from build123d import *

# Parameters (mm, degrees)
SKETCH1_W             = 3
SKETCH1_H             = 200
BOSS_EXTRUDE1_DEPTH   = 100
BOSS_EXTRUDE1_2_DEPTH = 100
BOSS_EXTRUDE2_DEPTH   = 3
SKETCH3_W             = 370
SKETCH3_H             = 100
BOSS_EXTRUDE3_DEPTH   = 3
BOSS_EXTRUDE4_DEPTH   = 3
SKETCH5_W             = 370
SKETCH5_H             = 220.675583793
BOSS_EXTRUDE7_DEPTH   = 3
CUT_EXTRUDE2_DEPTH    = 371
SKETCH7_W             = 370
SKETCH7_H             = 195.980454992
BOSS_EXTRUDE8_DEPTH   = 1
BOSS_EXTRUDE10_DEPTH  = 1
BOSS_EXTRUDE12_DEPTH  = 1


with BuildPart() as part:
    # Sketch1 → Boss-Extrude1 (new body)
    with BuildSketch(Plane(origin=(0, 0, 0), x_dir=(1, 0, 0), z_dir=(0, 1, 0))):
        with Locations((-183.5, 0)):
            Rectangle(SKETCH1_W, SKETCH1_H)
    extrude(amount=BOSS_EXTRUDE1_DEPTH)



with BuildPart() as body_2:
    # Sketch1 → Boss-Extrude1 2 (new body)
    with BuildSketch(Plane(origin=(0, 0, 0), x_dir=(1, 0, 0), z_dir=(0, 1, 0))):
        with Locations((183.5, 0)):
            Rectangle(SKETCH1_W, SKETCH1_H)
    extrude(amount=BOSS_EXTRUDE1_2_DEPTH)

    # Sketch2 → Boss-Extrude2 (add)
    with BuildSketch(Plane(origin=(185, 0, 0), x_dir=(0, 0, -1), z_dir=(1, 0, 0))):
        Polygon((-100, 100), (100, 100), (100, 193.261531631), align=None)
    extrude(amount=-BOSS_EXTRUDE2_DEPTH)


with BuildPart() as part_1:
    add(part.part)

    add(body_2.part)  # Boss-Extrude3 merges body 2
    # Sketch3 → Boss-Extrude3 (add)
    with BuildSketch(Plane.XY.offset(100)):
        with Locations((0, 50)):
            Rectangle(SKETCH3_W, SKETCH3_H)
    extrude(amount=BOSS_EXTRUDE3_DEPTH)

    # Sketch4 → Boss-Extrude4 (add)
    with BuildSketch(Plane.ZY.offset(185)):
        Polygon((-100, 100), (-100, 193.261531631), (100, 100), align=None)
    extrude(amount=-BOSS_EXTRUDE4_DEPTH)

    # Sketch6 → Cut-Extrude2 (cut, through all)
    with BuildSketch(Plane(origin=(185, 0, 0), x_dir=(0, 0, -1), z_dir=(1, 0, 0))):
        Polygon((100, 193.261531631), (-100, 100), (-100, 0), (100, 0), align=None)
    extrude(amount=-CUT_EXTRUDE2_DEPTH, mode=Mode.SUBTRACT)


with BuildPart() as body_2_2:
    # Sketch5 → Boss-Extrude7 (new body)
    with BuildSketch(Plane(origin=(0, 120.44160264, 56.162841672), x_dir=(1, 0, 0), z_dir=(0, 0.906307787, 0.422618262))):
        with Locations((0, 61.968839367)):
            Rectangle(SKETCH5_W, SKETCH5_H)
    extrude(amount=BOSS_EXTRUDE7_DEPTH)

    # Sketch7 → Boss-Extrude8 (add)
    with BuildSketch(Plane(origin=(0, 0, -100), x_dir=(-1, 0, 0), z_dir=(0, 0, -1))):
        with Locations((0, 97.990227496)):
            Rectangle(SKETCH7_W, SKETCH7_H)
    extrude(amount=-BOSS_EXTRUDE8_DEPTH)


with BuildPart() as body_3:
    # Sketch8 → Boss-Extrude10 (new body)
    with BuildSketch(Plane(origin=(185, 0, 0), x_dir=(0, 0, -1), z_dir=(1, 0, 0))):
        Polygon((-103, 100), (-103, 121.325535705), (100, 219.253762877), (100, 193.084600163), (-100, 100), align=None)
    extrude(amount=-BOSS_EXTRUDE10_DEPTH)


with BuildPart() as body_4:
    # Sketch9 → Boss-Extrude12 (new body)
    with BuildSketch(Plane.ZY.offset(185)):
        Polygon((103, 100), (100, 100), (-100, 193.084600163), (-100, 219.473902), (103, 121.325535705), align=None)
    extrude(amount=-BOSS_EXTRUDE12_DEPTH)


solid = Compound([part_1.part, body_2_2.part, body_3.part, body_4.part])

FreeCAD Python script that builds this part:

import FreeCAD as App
import Part
import Sketcher
Q = App.Units.Quantity


def add_polygon(sketch, points):
    """Adds a closed chain of lines whose ends are joined by coincident constraints."""
    first, n = sketch.GeometryCount, len(points)
    for a, b in zip(points, points[1:] + points[:1]):
        sketch.addGeometry(Part.LineSegment(App.Vector(*a, 0), App.Vector(*b, 0)), False)
    for i in range(n):
        sketch.addConstraint(Sketcher.Constraint("Coincident", first + i, 2, first + (i + 1) % n, 1))

doc = App.newDocument("Part")
body = doc.addObject("PartDesign::Body", "Body")

# Sketch on XZ plane
sketch1 = doc.addObject("Sketcher::SketchObject", "Sketch")
body.addObject(sketch1)
sketch1.AttachmentSupport = (doc.XZ_Plane, [""])
sketch1.MapMode = "FlatFace"
add_polygon(sketch1, [(-185, -100), (-185, 100), (-182, 100), (-182, -100)])  # lines 0-3
sketch1.addConstraint([
    Sketcher.Constraint("Vertical", 0),
    Sketcher.Constraint("Horizontal", 1),
    Sketcher.Constraint("Vertical", 2),
    Sketcher.Constraint("Horizontal", 3),
    Sketcher.Constraint("DistanceX", 1, 1, 1, 2, 3.0),
    Sketcher.Constraint("DistanceY", 0, 1, 0, 2, 200.0),
    Sketcher.Constraint("DistanceX", 0, 2, -1, 1, 185.0),
    Sketcher.Constraint("DistanceY", -1, 1, 0, 2, 100.0),
])
pad1 = doc.addObject("PartDesign::Pad", "Pad")
body.addObject(pad1)
pad1.Profile = sketch1
pad1.Length = 100
pad1.Reversed = True
body2 = doc.addObject("PartDesign::Body", "Body001")

# Sketch on XZ plane
sketch2 = doc.addObject("Sketcher::SketchObject", "Sketch001")
body2.addObject(sketch2)
sketch2.AttachmentSupport = (doc.getObject("XZ_Plane001"), [""])
sketch2.MapMode = "FlatFace"
add_polygon(sketch2, [(182, -100), (182, 100), (185, 100), (185, -100)])  # lines 0-3
sketch2.addConstraint([
    Sketcher.Constraint("Vertical", 0),
    Sketcher.Constraint("Horizontal", 1),
    Sketcher.Constraint("Vertical", 2),
    Sketcher.Constraint("Horizontal", 3),
    Sketcher.Constraint("DistanceX", 1, 1, 1, 2, 3.0),
    Sketcher.Constraint("DistanceY", 0, 1, 0, 2, 200.0),
    Sketcher.Constraint("DistanceX", -1, 1, 0, 2, 182.0),
    Sketcher.Constraint("DistanceY", -1, 1, 0, 2, 100.0),
])
pad2 = doc.addObject("PartDesign::Pad", "Pad001")
body2.addObject(pad2)
pad2.Profile = sketch2
pad2.Length = 100
pad2.Reversed = True

# Sketch on YZ plane
sketch3 = doc.addObject("Sketcher::SketchObject", "Sketch002")
body2.addObject(sketch3)
sketch3.AttachmentSupport = (doc.getObject("YZ_Plane001"), [""])
sketch3.MapMode = "FlatFace"
sketch3.AttachmentOffset = App.Placement(App.Vector(0, 0, 185), App.Rotation())
add_polygon(sketch3, [(100, 100), (100, -100), (193.261532, -100)])  # lines 0-2
sketch3.addConstraint([
    Sketcher.Constraint("Vertical", 0),
    Sketcher.Constraint("Horizontal", 1),
    Sketcher.Constraint("DistanceY", 0, 2, 0, 1, 200.0),
    Sketcher.Constraint("Angle", 2, Q("115 deg")),
    Sketcher.Constraint("DistanceX", -1, 1, 0, 2, 100.0),
    Sketcher.Constraint("DistanceY", 0, 2, -1, 1, 100.0),
])
pad3 = doc.addObject("PartDesign::Pad", "Pad002")
body2.addObject(pad3)
pad3.Profile = sketch3
pad3.Length = 3
pad3.Reversed = True
body.AllowCompound = True
doc.recompute()

boolean = doc.addObject("PartDesign::Boolean", "Boolean")
body.addObject(boolean)
boolean.Type = "Fuse"
boolean.addObjects([body2])

# Sketch on XY plane
sketch4 = doc.addObject("Sketcher::SketchObject", "Sketch003")
body.addObject(sketch4)
sketch4.AttachmentSupport = (doc.XY_Plane, [""])
sketch4.MapMode = "FlatFace"
sketch4.AttachmentOffset = App.Placement(App.Vector(0, 0, 100), App.Rotation())
add_polygon(sketch4, [(-185, 100), (-185, 0), (185, 0), (185, 100)])  # lines 0-3
sketch4.addConstraint([
    Sketcher.Constraint("Vertical", 0),
    Sketcher.Constraint("Horizontal", 1),
    Sketcher.Constraint("Vertical", 2),
    Sketcher.Constraint("Horizontal", 3),
    Sketcher.Constraint("Symmetric", 0, 2, 1, 2, -1, 1),
    Sketcher.Constraint("DistanceX", 1, 1, 1, 2, 370.0),
    Sketcher.Constraint("DistanceY", 0, 2, 0, 1, 100.0),
])
pad4 = doc.addObject("PartDesign::Pad", "Pad003")
body.addObject(pad4)
pad4.Profile = sketch4
pad4.Length = 3

# Sketch on YZ plane
sketch5 = doc.addObject("Sketcher::SketchObject", "Sketch004")
body.addObject(sketch5)
sketch5.AttachmentSupport = (doc.YZ_Plane, [""])
sketch5.MapMode = "FlatFace"
sketch5.AttachmentOffset = App.Placement(App.Vector(0, 0, -185), App.Rotation())
add_polygon(sketch5, [(193.261532, -100), (100, -100), (100, 100)])  # lines 0-2
sketch5.addConstraint([
    Sketcher.Constraint("Horizontal", 0),
    Sketcher.Constraint("Vertical", 1),
    Sketcher.Constraint("DistanceY", 1, 1, 1, 2, 200.0),
    Sketcher.Constraint("Angle", 2, Q("-65 deg")),
    Sketcher.Constraint("DistanceX", -1, 1, 0, 2, 100.0),
    Sketcher.Constraint("DistanceY", 0, 2, -1, 1, 100.0),
])
pad5 = doc.addObject("PartDesign::Pad", "Pad004")
body.addObject(pad5)
pad5.Profile = sketch5
pad5.Length = 3

# Sketch on YZ plane
sketch6 = doc.addObject("Sketcher::SketchObject", "Sketch005")
body.addObject(sketch6)
sketch6.AttachmentSupport = (doc.YZ_Plane, [""])
sketch6.MapMode = "FlatFace"
sketch6.AttachmentOffset = App.Placement(App.Vector(0, 0, 185), App.Rotation())
add_polygon(sketch6, [(193.261532, -100), (100, 100), (0, 100), (0, -100)])  # lines 0-3
sketch6.addConstraint([
    Sketcher.Constraint("Horizontal", 1),
    Sketcher.Constraint("Vertical", 2),
    Sketcher.Constraint("Horizontal", 3),
    Sketcher.Constraint("Symmetric", 1, 2, 2, 2, -1, 1),
    Sketcher.Constraint("DistanceX", 1, 2, 1, 1, 100.0),
    Sketcher.Constraint("DistanceY", 2, 2, 2, 1, 200.0),
    Sketcher.Constraint("Angle", 0, Q("115 deg")),
])
pocket1 = doc.addObject("PartDesign::Pocket", "Pocket")
body.addObject(pocket1)
pocket1.Profile = sketch6
pocket1.Type = "ThroughAll"
body3 = doc.addObject("PartDesign::Body", "Body002")

# Sketch on an angled plane
sketch7 = doc.addObject("Sketcher::SketchObject", "Sketch006")
body3.addObject(sketch7)
sketch7.Placement = App.Placement(App.Vector(0, 120.441603, 56.162842), App.Rotation(App.Vector(1, 0, 0), App.Vector(0, 0.422618262, -0.906307787), App.Vector(0, 0.906307787, 0.422618262), "ZXY"))
add_polygon(sketch7, [(-185, 172.306631), (-185, -48.368953), (185, -48.368953), (185, 172.306631)])  # lines 0-3
sketch7.addConstraint([
    Sketcher.Constraint("Vertical", 0),
    Sketcher.Constraint("Horizontal", 1),
    Sketcher.Constraint("Vertical", 2),
    Sketcher.Constraint("Horizontal", 3),
    Sketcher.Constraint("DistanceX", 1, 1, 1, 2, 370.0),
    Sketcher.Constraint("DistanceX", 0, 2, -1, 1, 185.0),
    Sketcher.Constraint("DistanceY", 0, 2, 0, 1, 220.675584),
    Sketcher.Constraint("DistanceY", -1, 1, 2, 2, 172.306631),
])
pad6 = doc.addObject("PartDesign::Pad", "Pad005")
body3.addObject(pad6)
pad6.Profile = sketch7
pad6.Length = 3

# Sketch on XY plane
sketch8 = doc.addObject("Sketcher::SketchObject", "Sketch007")
body3.addObject(sketch8)
sketch8.AttachmentSupport = (doc.getObject("XY_Plane002"), [""])
sketch8.MapMode = "FlatFace"
sketch8.AttachmentOffset = App.Placement(App.Vector(0, 0, -100), App.Rotation())
add_polygon(sketch8, [(185, 195.980455), (185, 0), (-185, 0), (-185, 195.980455)])  # lines 0-3
sketch8.addConstraint([
    Sketcher.Constraint("Vertical", 0),
    Sketcher.Constraint("Horizontal", 1),
    Sketcher.Constraint("Vertical", 2),
    Sketcher.Constraint("Horizontal", 3),
    Sketcher.Constraint("Symmetric", 0, 2, 1, 2, -1, 1),
    Sketcher.Constraint("DistanceX", 1, 2, 1, 1, 370.0),
    Sketcher.Constraint("DistanceY", 0, 2, 0, 1, 195.980455),
])
pad7 = doc.addObject("PartDesign::Pad", "Pad006")
body3.addObject(pad7)
pad7.Profile = sketch8
pad7.Length = 1
body4 = doc.addObject("PartDesign::Body", "Body003")

# Sketch on YZ plane
sketch9 = doc.addObject("Sketcher::SketchObject", "Sketch008")
body4.addObject(sketch9)
sketch9.AttachmentSupport = (doc.getObject("YZ_Plane003"), [""])
sketch9.MapMode = "FlatFace"
sketch9.AttachmentOffset = App.Placement(App.Vector(0, 0, 185), App.Rotation())
add_polygon(sketch9, [(121.325536, 103), (100, 103), (100, 100), (193.0846, -100), (219.253763, -100)])  # lines 0-4
sketch9.addConstraint([
    Sketcher.Constraint("Horizontal", 0),
    Sketcher.Constraint("Vertical", 1),
    Sketcher.Constraint("Horizontal", 3),
    Sketcher.Constraint("DistanceY", 1, 2, 1, 1, 3.0),
    Sketcher.Constraint("DistanceX", -1, 1, 0, 2, 100.0),
    Sketcher.Constraint("DistanceY", -1, 1, 0, 2, 103.0),
    Sketcher.Constraint("DistanceY", 2, 2, -1, 1, 100.0),
    Sketcher.Constraint("DistanceX", -1, 1, 2, 2, 193.0846),
    Sketcher.Constraint("DistanceX", 0, 2, 0, 1, 21.325536),
    Sketcher.Constraint("DistanceX", 3, 1, 3, 2, 26.169163),
])
pad8 = doc.addObject("PartDesign::Pad", "Pad007")
body4.addObject(pad8)
pad8.Profile = sketch9
pad8.Length = 1
pad8.Reversed = True
body5 = doc.addObject("PartDesign::Body", "Body004")

# Sketch on YZ plane
sketch10 = doc.addObject("Sketcher::SketchObject", "Sketch009")
body5.addObject(sketch10)
sketch10.AttachmentSupport = (doc.getObject("YZ_Plane004"), [""])
sketch10.MapMode = "FlatFace"
sketch10.AttachmentOffset = App.Placement(App.Vector(0, 0, -185), App.Rotation())
add_polygon(sketch10, [(100, 100), (100, 103), (121.325536, 103), (219.473902, -100), (193.0846, -100)])  # lines 0-4
sketch10.addConstraint([
    Sketcher.Constraint("Vertical", 0),
    Sketcher.Constraint("Horizontal", 1),
    Sketcher.Constraint("Horizontal", 3),
    Sketcher.Constraint("DistanceY", 0, 1, 0, 2, 3.0),
    Sketcher.Constraint("DistanceX", -1, 1, 0, 2, 100.0),
    Sketcher.Constraint("DistanceY", -1, 1, 0, 2, 103.0),
    Sketcher.Constraint("DistanceY", 2, 2, -1, 1, 100.0),
    Sketcher.Constraint("DistanceX", 3, 2, 3, 1, 26.389302),
    Sketcher.Constraint("DistanceX", -1, 1, 3, 2, 193.0846),
    Sketcher.Constraint("DistanceX", 1, 1, 1, 2, 21.325536),
])
pad9 = doc.addObject("PartDesign::Pad", "Pad008")
body5.addObject(pad9)
pad9.Profile = sketch10
pad9.Length = 1

doc.recompute()
